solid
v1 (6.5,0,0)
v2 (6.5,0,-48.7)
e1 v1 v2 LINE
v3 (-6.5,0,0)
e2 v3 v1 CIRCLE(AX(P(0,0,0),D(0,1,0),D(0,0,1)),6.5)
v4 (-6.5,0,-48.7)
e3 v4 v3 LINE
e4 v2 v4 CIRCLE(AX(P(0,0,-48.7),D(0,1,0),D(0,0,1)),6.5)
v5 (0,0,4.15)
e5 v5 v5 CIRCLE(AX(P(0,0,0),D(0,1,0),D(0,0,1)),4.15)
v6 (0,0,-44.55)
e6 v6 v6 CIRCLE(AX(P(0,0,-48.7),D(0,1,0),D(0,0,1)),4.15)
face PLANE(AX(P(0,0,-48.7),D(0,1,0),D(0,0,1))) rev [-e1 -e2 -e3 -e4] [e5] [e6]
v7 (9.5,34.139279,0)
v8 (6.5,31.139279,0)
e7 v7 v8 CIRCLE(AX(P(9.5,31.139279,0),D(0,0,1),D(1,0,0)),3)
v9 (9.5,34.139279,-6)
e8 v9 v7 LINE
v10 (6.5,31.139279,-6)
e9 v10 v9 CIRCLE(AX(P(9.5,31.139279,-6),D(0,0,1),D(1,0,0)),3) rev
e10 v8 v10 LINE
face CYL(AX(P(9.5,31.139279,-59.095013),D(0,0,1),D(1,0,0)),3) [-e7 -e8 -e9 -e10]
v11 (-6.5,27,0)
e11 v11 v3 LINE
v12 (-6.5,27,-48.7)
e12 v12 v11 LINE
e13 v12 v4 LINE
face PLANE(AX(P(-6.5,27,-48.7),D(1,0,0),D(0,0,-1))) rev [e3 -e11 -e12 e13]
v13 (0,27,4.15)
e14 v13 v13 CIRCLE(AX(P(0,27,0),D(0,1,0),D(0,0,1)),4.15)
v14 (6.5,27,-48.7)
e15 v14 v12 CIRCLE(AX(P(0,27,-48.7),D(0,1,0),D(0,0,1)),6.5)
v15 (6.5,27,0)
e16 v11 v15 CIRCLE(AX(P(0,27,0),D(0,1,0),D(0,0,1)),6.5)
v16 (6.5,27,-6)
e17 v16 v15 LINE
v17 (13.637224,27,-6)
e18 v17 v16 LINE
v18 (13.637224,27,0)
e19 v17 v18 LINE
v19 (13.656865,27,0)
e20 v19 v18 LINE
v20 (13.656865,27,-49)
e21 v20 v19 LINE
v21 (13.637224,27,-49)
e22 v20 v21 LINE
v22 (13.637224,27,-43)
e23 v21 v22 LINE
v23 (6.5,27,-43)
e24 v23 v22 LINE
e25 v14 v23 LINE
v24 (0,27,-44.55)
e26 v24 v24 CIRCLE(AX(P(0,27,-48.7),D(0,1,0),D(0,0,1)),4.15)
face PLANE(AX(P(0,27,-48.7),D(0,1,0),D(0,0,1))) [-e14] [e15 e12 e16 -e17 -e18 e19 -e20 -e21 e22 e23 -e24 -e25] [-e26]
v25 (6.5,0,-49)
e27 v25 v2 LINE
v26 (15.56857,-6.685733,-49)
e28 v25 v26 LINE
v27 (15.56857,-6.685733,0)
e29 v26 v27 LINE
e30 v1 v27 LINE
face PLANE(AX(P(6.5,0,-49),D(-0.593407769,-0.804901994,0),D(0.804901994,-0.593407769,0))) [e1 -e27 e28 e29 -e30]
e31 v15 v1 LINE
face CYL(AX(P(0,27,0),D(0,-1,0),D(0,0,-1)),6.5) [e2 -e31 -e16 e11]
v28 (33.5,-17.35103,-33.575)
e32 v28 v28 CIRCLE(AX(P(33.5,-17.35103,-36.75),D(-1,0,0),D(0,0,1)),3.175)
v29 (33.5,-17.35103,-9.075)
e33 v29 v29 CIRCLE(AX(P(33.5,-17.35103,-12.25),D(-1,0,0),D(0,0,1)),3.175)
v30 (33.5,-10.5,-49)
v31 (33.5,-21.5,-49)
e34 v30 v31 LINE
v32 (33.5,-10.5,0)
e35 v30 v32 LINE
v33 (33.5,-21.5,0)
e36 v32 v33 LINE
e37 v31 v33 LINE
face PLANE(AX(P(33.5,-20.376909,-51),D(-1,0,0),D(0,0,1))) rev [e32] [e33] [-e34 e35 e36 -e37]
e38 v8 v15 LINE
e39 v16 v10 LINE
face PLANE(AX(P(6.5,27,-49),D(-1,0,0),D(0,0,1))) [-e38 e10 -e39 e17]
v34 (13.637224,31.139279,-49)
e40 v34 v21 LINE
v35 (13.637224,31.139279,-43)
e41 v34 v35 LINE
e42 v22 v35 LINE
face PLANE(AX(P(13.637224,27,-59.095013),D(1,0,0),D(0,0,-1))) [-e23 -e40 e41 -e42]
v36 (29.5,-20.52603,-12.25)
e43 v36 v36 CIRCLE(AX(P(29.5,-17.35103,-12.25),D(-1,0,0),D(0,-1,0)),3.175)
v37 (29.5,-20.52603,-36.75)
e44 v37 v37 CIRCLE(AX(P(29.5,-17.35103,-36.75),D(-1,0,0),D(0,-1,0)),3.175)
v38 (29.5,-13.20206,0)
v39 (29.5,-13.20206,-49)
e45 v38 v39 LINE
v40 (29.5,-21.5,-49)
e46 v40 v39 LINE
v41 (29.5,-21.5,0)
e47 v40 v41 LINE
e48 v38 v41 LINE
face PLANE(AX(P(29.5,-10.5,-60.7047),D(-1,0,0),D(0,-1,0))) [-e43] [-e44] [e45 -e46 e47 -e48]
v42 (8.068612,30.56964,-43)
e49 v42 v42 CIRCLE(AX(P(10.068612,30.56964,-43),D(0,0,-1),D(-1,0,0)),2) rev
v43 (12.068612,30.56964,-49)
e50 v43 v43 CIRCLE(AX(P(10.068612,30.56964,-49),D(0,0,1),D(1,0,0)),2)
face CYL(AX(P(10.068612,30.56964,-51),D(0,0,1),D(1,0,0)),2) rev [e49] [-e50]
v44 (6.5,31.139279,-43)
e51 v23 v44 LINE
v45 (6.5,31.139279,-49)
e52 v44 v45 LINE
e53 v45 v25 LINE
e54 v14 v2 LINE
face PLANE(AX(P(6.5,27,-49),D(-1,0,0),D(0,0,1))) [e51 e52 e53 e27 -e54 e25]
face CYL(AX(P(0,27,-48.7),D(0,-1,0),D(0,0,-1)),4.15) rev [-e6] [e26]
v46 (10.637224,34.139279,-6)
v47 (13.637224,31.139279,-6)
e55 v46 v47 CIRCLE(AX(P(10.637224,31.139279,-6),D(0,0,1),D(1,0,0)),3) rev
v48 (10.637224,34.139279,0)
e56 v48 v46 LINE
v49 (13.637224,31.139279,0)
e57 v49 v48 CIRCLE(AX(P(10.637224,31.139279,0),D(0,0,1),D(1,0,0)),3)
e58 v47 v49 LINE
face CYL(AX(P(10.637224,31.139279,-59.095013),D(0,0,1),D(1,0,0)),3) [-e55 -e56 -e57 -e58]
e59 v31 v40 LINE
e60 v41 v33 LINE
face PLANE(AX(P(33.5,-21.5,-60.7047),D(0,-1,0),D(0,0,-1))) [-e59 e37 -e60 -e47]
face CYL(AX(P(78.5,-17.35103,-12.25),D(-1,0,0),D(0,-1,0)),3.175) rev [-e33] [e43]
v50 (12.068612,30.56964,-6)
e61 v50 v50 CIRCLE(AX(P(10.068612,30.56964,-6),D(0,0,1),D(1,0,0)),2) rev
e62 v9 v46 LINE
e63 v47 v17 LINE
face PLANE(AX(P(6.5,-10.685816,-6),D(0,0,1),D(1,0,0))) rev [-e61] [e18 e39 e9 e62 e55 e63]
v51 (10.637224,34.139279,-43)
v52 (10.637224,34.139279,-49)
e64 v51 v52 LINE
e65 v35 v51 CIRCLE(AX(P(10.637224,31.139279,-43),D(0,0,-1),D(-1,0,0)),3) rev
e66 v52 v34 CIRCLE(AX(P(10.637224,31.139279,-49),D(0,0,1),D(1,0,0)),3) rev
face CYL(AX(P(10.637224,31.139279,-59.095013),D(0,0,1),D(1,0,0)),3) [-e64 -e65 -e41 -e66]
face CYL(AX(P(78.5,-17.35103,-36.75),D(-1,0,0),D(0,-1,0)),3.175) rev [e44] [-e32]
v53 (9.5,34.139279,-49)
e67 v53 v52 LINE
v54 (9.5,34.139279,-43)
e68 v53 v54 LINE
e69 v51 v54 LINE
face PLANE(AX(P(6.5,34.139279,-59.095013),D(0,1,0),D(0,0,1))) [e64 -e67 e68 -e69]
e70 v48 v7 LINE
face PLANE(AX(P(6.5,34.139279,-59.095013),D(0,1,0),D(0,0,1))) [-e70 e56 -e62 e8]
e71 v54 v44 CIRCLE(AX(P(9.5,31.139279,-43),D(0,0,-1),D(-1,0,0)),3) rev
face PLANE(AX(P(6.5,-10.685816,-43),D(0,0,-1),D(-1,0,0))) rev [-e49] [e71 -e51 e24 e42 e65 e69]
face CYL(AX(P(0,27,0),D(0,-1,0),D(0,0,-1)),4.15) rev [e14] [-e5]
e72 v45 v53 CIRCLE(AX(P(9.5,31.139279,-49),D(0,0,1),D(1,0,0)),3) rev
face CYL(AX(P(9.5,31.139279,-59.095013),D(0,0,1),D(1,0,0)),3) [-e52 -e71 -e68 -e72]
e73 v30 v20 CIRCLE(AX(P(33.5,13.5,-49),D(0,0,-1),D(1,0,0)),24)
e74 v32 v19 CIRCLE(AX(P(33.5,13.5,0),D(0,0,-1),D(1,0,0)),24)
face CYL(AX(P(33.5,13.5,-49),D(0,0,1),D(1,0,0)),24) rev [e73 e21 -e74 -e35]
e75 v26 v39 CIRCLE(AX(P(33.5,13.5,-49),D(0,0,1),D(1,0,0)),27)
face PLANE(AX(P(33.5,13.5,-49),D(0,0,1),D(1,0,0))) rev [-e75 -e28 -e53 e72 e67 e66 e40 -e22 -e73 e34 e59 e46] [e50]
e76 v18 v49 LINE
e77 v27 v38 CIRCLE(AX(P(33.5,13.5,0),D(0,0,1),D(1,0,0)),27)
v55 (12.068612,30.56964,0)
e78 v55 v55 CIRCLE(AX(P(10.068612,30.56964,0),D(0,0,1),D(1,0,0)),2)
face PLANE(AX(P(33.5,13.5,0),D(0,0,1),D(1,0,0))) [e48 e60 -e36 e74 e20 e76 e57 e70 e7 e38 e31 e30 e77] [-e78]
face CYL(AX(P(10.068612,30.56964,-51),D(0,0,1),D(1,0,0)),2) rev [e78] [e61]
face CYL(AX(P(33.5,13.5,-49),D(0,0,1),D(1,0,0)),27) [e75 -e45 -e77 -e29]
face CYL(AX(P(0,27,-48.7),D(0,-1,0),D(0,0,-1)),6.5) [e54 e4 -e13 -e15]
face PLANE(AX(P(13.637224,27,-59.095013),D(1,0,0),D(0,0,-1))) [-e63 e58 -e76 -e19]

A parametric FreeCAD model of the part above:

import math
import FreeCAD as App
import Part
import Sketcher
from FreeCAD import Vector


def edges_at(feature, points):
    """Names of the edges that pass closest to the given points."""
    edges = feature.Shape.Edges
    near = lambda p: min(range(len(edges)), key=lambda i: edges[i].distToShape(Part.Vertex(*p))[0])
    return sorted({f"Edge{near(p) + 1}" for p in points})

doc = App.newDocument("Part")
params = doc.addObject("Spreadsheet::Sheet", "Params")
for row, (alias, value) in enumerate([
    ("sketch1_diameter", "8.3 mm"),
    ("sketch1_radius", "6.5 mm"),
    ("sketch1_height", "48.7 mm"),
    ("pad1_length", "27 mm"),
    ("sketch2_radius", "27 mm"),
    ("sketch2_radius2", "24 mm"),
    ("sketch2_height", "27 mm"),
    ("pad2_length", "49 mm"),
    ("pad3_length", "49 mm"),
    ("sketch4_diameter", "4 mm"),
    ("pocket1_length", "51 mm"),
    ("fillet_radius", "3 mm"),
    ("sketch5_height", "37 mm"),
    ("pocket2_length", "7.139279 mm"),
    ("pocket3_length", "51 mm"),
    ("sketch7_width", "4 mm"),
    ("sketch7_height", "11 mm"),
    ("pad4_length", "49 mm"),
    ("sketch8_diameter", "6.35 mm"),
    ("pocket4_length", "49 mm"),
], start=1):
    params.set(f"A{row}", alias)
    params.set(f"B{row}", "=" + value)
    params.setAlias(f"B{row}", alias)

body = doc.addObject("PartDesign::Body", "Body")

# Sketch on XZ plane
sketch1 = doc.addObject("Sketcher::SketchObject", "Sketch")
body.addObject(sketch1)
sketch1.AttachmentSupport = (doc.XZ_Plane, [""])
sketch1.MapMode = "FlatFace"
sketch1.addGeometry([
    Part.LineSegment(Vector(-6.5, -48.7, 0), Vector(-6.5, 0, 0)),  # 0
    Part.ArcOfCircle(Part.Circle(Vector(0, 0, 0), Vector(0, 0, 1), 6.5), math.radians(0), math.radians(180)),  # 1
    Part.LineSegment(Vector(6.5, 0, 0), Vector(6.5, -48.7, 0)),  # 2
    Part.ArcOfCircle(Part.Circle(Vector(0, -48.7, 0), Vector(0, 0, 1), 6.5), math.radians(180), math.radians(360)),  # 3
    Part.Circle(Vector(0, 0, 0), Vector(0, 0, 1), 4.15),  # 4
    Part.Circle(Vector(0, -48.7, 0), Vector(0, 0, 1), 4.15),  # 5
], False)
sketch1.addConstraint([
    Sketcher.Constraint("Tangent", 0, 2, 1, 2),
    Sketcher.Constraint("Tangent", 1, 1, 2, 1),
    Sketcher.Constraint("Tangent", 2, 2, 3, 2),
    Sketcher.Constraint("Tangent", 3, 1, 0, 1),
    Sketcher.Constraint("Vertical", 0),
    Sketcher.Constraint("Vertical", 2),
    Sketcher.Constraint("Coincident", 1, 3, -1, 1),
    Sketcher.Constraint("Coincident", 4, 3, -1, 1),
    Sketcher.Constraint("Coincident", 5, 3, 3, 3),
    Sketcher.Constraint("Equal", 4, 5),
    Sketcher.Constraint("Diameter", 4, 8.3),
    Sketcher.Constraint("Radius", 1, 6.5),
    Sketcher.Constraint("DistanceY", 0, 1, 0, 2, 48.7),
])
sketch1.setExpression("Constraints[10]", "Params.sketch1_diameter")
sketch1.setExpression("Constraints[11]", "Params.sketch1_radius")
sketch1.setExpression("Constraints[12]", "Params.sketch1_height")
pad1 = doc.addObject("PartDesign::Pad", "Pad")
body.addObject(pad1)
pad1.Profile = sketch1
pad1.setExpression("Length", "Params.pad1_length")
pad1.Reversed = True

# Sketch on XY plane
sketch2 = doc.addObject("Sketcher::SketchObject", "Sketch001")
body.addObject(sketch2)
sketch2.AttachmentSupport = (doc.XY_Plane, [""])
sketch2.MapMode = "FlatFace"
sketch2.addGeometry([
    Part.LineSegment(Vector(6.5, 27, 0), Vector(6.5, 0, 0)),  # 0
    Part.LineSegment(Vector(6.5, 0, 0), Vector(15.56857, -6.685733, 0)),  # 1
    Part.ArcOfCircle(Part.Circle(Vector(33.5, 13.5, 0), Vector(0, 0, 1), 27), math.radians(-131.615388), math.radians(-3.973896)),  # 2
    Part.LineSegment(Vector(60.435085, 11.628847, 0), Vector(62.638339, 10.782838, 0)),  # 3
    Part.LineSegment(Vector(62.638339, 10.782838, 0), Vector(62.638339, 13.5, 0)),  # 4
    Part.LineSegment(Vector(62.638339, 13.5, 0), Vector(57.5, 13.5, 0)),  # 5
    Part.ArcOfCircle(Part.Circle(Vector(33.5, 13.5, 0), Vector(0, 0, 1), 24), math.radians(145.771134), math.radians(360)),  # 6
    Part.LineSegment(Vector(13.656865, 27, 0), Vector(6.5, 27, 0)),  # 7
], False)
sketch2.addConstraint([
    Sketcher.Constraint("Coincident", 0, 2, 1, 1),
    Sketcher.Constraint("Coincident", 1, 2, 2, 1),
    Sketcher.Constraint("Coincident", 2, 2, 3, 1),
    Sketcher.Constraint("Coincident", 3, 2, 4, 1),
    Sketcher.Constraint("Coincident", 4, 2, 5, 1),
    Sketcher.Constraint("Coincident", 5, 2, 6, 2),
    Sketcher.Constraint("Coincident", 6, 1, 7, 1),
    Sketcher.Constraint("Coincident", 7, 2, 0, 1),
    Sketcher.Constraint("Vertical", 0),
    Sketcher.Constraint("Vertical", 4),
    Sketcher.Constraint("Horizontal", 5),
    Sketcher.Constraint("Horizontal", 7),
    Sketcher.Constraint("Coincident", 6, 3, 2, 3),
    Sketcher.Constraint("PointOnObject", 0, 2, -1),
    Sketcher.Constraint("Horizontal", 6, 3, 4, 2),
    Sketcher.Constraint("Radius", 2, 27.0),
    Sketcher.Constraint("Radius", 6, 24.0),
    Sketcher.Constraint("DistanceY", 0, 2, 0, 1, 27.0),
    Sketcher.Constraint("DistanceX", 0, 2, 2, 3, 27.0),
    Sketcher.Constraint("DistanceX", -1, 1, 2, 3, 33.5),
    Sketcher.Constraint("DistanceY", -1, 1, 2, 3, 13.5),
    Sketcher.Constraint("DistanceX", 5, 2, 5, 1, 5.138339),
    Sketcher.Constraint("DistanceY", 4, 1, 4, 2, 2.717162),
    Sketcher.Constraint("DistanceX", -1, 1, 1, 2, 15.56857),
    Sketcher.Constraint("DistanceY", 1, 2, 2, 2, 18.31458),
])
sketch2.setExpression("Constraints[15]", "Params.sketch2_radius")
sketch2.setExpression("Constraints[16]", "Params.sketch2_radius2")
sketch2.setExpression("Constraints[17]", "Params.sketch2_height")
pad2 = doc.addObject("PartDesign::Pad", "Pad001")
body.addObject(pad2)
pad2.Profile = sketch2
pad2.setExpression("Length", "Params.pad2_length")
pad2.Reversed = True

# Sketch on XY plane
sketch3 = doc.addObject("Sketcher::SketchObject", "Sketch002")
body.addObject(sketch3)
sketch3.AttachmentSupport = (doc.XY_Plane, [""])
sketch3.MapMode = "FlatFace"
sketch3.addGeometry([
    Part.LineSegment(Vector(6.5, 34.139279, 0), Vector(6.5, 27, 0)),
    Part.LineSegment(Vector(6.5, 27, 0), Vector(13.637224, 27, 0)),
    Part.LineSegment(Vector(13.637224, 27, 0), Vector(13.637224, 34.139279, 0)),
    Part.LineSegment(Vector(13.637224, 34.139279, 0), Vector(6.5, 34.139279, 0)),
], False)
sketch3.addConstraint([
    Sketcher.Constraint("Coincident", 0, 2, 1, 1),
    Sketcher.Constraint("Coincident", 1, 2, 2, 1),
    Sketcher.Constraint("Coincident", 2, 2, 3, 1),
    Sketcher.Constraint("Coincident", 3, 2, 0, 1),
    Sketcher.Constraint("Vertical", 0),
    Sketcher.Constraint("Horizontal", 1),
    Sketcher.Constraint("Vertical", 2),
    Sketcher.Constraint("Horizontal", 3),
    Sketcher.Constraint("DistanceY", -1, 1, 0, 2, 27.0),
    Sketcher.Constraint("DistanceX", -1, 1, 0, 2, 6.5),
    Sketcher.Constraint("DistanceY", 0, 2, 0, 1, 7.139279),
    Sketcher.Constraint("DistanceX", 1, 1, 1, 2, 7.137224),
])
pad3 = doc.addObject("PartDesign::Pad", "Pad002")
body.addObject(pad3)
pad3.Profile = sketch3
pad3.setExpression("Length", "Params.pad3_length")
pad3.Reversed = True

# Sketch on XY plane
sketch4 = doc.addObject("Sketcher::SketchObject", "Sketch003")
body.addObject(sketch4)
sketch4.AttachmentSupport = (doc.XY_Plane, [""])
sketch4.MapMode = "FlatFace"
sketch4.addGeometry(Part.Circle(Vector(10.068612, 30.56964, 0), Vector(0, 0, 1), 2), False)
sketch4.addConstraint([
    Sketcher.Constraint("Diameter", 0, 4.0),
    Sketcher.Constraint("DistanceY", -1, 1, 0, 3, 30.56964),
    Sketcher.Constraint("DistanceX", -1, 1, 0, 3, 10.068612),
])
sketch4.setExpression("Constraints[0]", "Params.sketch4_diameter")
pocket1 = doc.addObject("PartDesign::Pocket", "Pocket")
body.addObject(pocket1)
pocket1.Profile = sketch4
pocket1.setExpression("Length", "Params.pocket1_length")
doc.recompute()

fillet = doc.addObject("PartDesign::Fillet", "Fillet")
body.addObject(fillet)
fillet.Base = (pocket1, edges_at(pocket1, [(6.5, 34.139, -24.5), (13.637, 34.139, -24.5)]))
fillet.setExpression("Radius", "Params.fillet_radius")

# Sketch on XZ plane
sketch5 = doc.addObject("Sketcher::SketchObject", "Sketch004")
body.addObject(sketch5)
sketch5.AttachmentSupport = (doc.XZ_Plane, [""])
sketch5.MapMode = "FlatFace"
sketch5.AttachmentOffset = App.Placement(Vector(0, 0, -34.139279), App.Rotation())
sketch5.addGeometry([
    Part.LineSegment(Vector(6.5, -43, 0), Vector(6.5, -6, 0)),
    Part.LineSegment(Vector(6.5, -6, 0), Vector(13.656865, -6, 0)),
    Part.LineSegment(Vector(13.656865, -6, 0), Vector(13.656865, -43, 0)),
    Part.LineSegment(Vector(13.656865, -43, 0), Vector(6.5, -43, 0)),
], False)
sketch5.addConstraint([
    Sketcher.Constraint("Coincident", 0, 2, 1, 1),
    Sketcher.Constraint("Coincident", 1, 2, 2, 1),
    Sketcher.Constraint("Coincident", 2, 2, 3, 1),
    Sketcher.Constraint("Coincident", 3, 2, 0, 1),
    Sketcher.Constraint("Vertical", 0),
    Sketcher.Constraint("Horizontal", 1),
    Sketcher.Constraint("Vertical", 2),
    Sketcher.Constraint("Horizontal", 3),
    Sketcher.Constraint("DistanceY", 0, 1, 0, 2, 37.0),
    Sketcher.Constraint("DistanceY", 0, 2, -1, 1, 6.0),
    Sketcher.Constraint("DistanceX", -1, 1, 0, 2, 6.5),
    Sketcher.Constraint("DistanceX", 1, 1, 1, 2, 7.156865),
])
sketch5.setExpression("Constraints[8]", "Params.sketch5_height")
pocket2 = doc.addObject("PartDesign::Pocket", "Pocket001")
body.addObject(pocket2)
pocket2.Profile = sketch5
pocket2.setExpression("Length", "Params.pocket2_length")
pocket2.Reversed = True

# Sketch on XY plane
sketch6 = doc.addObject("Sketcher::SketchObject", "Sketch005")
body.addObject(sketch6)
sketch6.AttachmentSupport = (doc.XY_Plane, [""])
sketch6.MapMode = "FlatFace"
sketch6.addGeometry([
    Part.LineSegment(Vector(33.5, 28.15595, 0), Vector(33.5, -20.376909, 0)),
    Part.LineSegment(Vector(33.5, -20.376909, 0), Vector(70.074973, -20.376909, 0)),
    Part.LineSegment(Vector(70.074973, -20.376909, 0), Vector(70.074973, 28.15595, 0)),
    Part.LineSegment(Vector(70.074973, 28.15595, 0), Vector(33.5, 28.15595, 0)),
], False)
sketch6.addConstraint([
    Sketcher.Constraint("Coincident", 0, 2, 1, 1),
    Sketcher.Constraint("Coincident", 1, 2, 2, 1),
    Sketcher.Constraint("Coincident", 2, 2, 3, 1),
    Sketcher.Constraint("Coincident", 3, 2, 0, 1),
    Sketcher.Constraint("Vertical", 0),
    Sketcher.Constraint("Horizontal", 1),
    Sketcher.Constraint("Vertical", 2),
    Sketcher.Constraint("Horizontal", 3),
    Sketcher.Constraint("DistanceX", -1, 1, 0, 2, 33.5),
    Sketcher.Constraint("DistanceY", 0, 2, 0, 1, 48.532858),
    Sketcher.Constraint("DistanceX", 1, 1, 1, 2, 36.574973),
    Sketcher.Constraint("DistanceY", 0, 2, -1, 1, 20.376909),
])
pocket3 = doc.addObject("PartDesign::Pocket", "Pocket002")
body.addObject(pocket3)
pocket3.Profile = sketch6
pocket3.setExpression("Length", "Params.pocket3_length")

# Sketch on XY plane
sketch7 = doc.addObject("Sketcher::SketchObject", "Sketch006")
body.addObject(sketch7)
sketch7.AttachmentSupport = (doc.XY_Plane, [""])
sketch7.MapMode = "FlatFace"
sketch7.addGeometry([
    Part.LineSegment(Vector(29.5, -10.5, 0), Vector(29.5, -21.5, 0)),
    Part.LineSegment(Vector(29.5, -21.5, 0), Vector(33.5, -21.5, 0)),
    Part.LineSegment(Vector(33.5, -21.5, 0), Vector(33.5, -10.5, 0)),
    Part.LineSegment(Vector(33.5, -10.5, 0), Vector(29.5, -10.5, 0)),
], False)
sketch7.addConstraint([
    Sketcher.Constraint("Coincident", 0, 2, 1, 1),
    Sketcher.Constraint("Coincident", 1, 2, 2, 1),
    Sketcher.Constraint("Coincident", 2, 2, 3, 1),
    Sketcher.Constraint("Coincident", 3, 2, 0, 1),
    Sketcher.Constraint("Vertical", 0),
    Sketcher.Constraint("Horizontal", 1),
    Sketcher.Constraint("Vertical", 2),
    Sketcher.Constraint("Horizontal", 3),
    Sketcher.Constraint("DistanceX", 1, 1, 1, 2, 4.0),
    Sketcher.Constraint("DistanceY", 0, 2, 0, 1, 11.0),
    Sketcher.Constraint("DistanceX", -1, 1, 0, 2, 29.5),
    Sketcher.Constraint("DistanceY", 0, 2, -1, 1, 21.5),
])
sketch7.setExpression("Constraints[8]", "Params.sketch7_width")
sketch7.setExpression("Constraints[9]", "Params.sketch7_height")
pad4 = doc.addObject("PartDesign::Pad", "Pad003")
body.addObject(pad4)
pad4.Profile = sketch7
pad4.setExpression("Length", "Params.pad4_length")
pad4.Reversed = True

# Sketch on YZ plane
sketch8 = doc.addObject("Sketcher::SketchObject", "Sketch007")
body.addObject(sketch8)
sketch8.AttachmentSupport = (doc.YZ_Plane, [""])
sketch8.MapMode = "FlatFace"
sketch8.AttachmentOffset = App.Placement(Vector(0, 0, 29.5), App.Rotation())
sketch8.addGeometry([
    Part.Circle(Vector(-17.35103, -36.75, 0), Vector(0, 0, 1), 3.175),
    Part.Circle(Vector(-17.35103, -12.25, 0), Vector(0, 0, 1), 3.175),
], False)
sketch8.addConstraint([
    Sketcher.Constraint("Equal", 0, 1),
    Sketcher.Constraint("Vertical", 0, 3, 1, 3),
    Sketcher.Constraint("Diameter", 0, 6.35),
    Sketcher.Constraint("DistanceY", 0, 3, 1, 3, 24.5),
    Sketcher.Constraint("DistanceY", 0, 3, -1, 1, 36.75),
    Sketcher.Constraint("DistanceX", 0, 3, -1, 1, 17.35103),
])
sketch8.setExpression("Constraints[2]", "Params.sketch8_diameter")
pocket4 = doc.addObject("PartDesign::Pocket", "Pocket003")
body.addObject(pocket4)
pocket4.Profile = sketch8
pocket4.setExpression("Length", "Params.pocket4_length")
pocket4.Reversed = True

doc.recompute()
